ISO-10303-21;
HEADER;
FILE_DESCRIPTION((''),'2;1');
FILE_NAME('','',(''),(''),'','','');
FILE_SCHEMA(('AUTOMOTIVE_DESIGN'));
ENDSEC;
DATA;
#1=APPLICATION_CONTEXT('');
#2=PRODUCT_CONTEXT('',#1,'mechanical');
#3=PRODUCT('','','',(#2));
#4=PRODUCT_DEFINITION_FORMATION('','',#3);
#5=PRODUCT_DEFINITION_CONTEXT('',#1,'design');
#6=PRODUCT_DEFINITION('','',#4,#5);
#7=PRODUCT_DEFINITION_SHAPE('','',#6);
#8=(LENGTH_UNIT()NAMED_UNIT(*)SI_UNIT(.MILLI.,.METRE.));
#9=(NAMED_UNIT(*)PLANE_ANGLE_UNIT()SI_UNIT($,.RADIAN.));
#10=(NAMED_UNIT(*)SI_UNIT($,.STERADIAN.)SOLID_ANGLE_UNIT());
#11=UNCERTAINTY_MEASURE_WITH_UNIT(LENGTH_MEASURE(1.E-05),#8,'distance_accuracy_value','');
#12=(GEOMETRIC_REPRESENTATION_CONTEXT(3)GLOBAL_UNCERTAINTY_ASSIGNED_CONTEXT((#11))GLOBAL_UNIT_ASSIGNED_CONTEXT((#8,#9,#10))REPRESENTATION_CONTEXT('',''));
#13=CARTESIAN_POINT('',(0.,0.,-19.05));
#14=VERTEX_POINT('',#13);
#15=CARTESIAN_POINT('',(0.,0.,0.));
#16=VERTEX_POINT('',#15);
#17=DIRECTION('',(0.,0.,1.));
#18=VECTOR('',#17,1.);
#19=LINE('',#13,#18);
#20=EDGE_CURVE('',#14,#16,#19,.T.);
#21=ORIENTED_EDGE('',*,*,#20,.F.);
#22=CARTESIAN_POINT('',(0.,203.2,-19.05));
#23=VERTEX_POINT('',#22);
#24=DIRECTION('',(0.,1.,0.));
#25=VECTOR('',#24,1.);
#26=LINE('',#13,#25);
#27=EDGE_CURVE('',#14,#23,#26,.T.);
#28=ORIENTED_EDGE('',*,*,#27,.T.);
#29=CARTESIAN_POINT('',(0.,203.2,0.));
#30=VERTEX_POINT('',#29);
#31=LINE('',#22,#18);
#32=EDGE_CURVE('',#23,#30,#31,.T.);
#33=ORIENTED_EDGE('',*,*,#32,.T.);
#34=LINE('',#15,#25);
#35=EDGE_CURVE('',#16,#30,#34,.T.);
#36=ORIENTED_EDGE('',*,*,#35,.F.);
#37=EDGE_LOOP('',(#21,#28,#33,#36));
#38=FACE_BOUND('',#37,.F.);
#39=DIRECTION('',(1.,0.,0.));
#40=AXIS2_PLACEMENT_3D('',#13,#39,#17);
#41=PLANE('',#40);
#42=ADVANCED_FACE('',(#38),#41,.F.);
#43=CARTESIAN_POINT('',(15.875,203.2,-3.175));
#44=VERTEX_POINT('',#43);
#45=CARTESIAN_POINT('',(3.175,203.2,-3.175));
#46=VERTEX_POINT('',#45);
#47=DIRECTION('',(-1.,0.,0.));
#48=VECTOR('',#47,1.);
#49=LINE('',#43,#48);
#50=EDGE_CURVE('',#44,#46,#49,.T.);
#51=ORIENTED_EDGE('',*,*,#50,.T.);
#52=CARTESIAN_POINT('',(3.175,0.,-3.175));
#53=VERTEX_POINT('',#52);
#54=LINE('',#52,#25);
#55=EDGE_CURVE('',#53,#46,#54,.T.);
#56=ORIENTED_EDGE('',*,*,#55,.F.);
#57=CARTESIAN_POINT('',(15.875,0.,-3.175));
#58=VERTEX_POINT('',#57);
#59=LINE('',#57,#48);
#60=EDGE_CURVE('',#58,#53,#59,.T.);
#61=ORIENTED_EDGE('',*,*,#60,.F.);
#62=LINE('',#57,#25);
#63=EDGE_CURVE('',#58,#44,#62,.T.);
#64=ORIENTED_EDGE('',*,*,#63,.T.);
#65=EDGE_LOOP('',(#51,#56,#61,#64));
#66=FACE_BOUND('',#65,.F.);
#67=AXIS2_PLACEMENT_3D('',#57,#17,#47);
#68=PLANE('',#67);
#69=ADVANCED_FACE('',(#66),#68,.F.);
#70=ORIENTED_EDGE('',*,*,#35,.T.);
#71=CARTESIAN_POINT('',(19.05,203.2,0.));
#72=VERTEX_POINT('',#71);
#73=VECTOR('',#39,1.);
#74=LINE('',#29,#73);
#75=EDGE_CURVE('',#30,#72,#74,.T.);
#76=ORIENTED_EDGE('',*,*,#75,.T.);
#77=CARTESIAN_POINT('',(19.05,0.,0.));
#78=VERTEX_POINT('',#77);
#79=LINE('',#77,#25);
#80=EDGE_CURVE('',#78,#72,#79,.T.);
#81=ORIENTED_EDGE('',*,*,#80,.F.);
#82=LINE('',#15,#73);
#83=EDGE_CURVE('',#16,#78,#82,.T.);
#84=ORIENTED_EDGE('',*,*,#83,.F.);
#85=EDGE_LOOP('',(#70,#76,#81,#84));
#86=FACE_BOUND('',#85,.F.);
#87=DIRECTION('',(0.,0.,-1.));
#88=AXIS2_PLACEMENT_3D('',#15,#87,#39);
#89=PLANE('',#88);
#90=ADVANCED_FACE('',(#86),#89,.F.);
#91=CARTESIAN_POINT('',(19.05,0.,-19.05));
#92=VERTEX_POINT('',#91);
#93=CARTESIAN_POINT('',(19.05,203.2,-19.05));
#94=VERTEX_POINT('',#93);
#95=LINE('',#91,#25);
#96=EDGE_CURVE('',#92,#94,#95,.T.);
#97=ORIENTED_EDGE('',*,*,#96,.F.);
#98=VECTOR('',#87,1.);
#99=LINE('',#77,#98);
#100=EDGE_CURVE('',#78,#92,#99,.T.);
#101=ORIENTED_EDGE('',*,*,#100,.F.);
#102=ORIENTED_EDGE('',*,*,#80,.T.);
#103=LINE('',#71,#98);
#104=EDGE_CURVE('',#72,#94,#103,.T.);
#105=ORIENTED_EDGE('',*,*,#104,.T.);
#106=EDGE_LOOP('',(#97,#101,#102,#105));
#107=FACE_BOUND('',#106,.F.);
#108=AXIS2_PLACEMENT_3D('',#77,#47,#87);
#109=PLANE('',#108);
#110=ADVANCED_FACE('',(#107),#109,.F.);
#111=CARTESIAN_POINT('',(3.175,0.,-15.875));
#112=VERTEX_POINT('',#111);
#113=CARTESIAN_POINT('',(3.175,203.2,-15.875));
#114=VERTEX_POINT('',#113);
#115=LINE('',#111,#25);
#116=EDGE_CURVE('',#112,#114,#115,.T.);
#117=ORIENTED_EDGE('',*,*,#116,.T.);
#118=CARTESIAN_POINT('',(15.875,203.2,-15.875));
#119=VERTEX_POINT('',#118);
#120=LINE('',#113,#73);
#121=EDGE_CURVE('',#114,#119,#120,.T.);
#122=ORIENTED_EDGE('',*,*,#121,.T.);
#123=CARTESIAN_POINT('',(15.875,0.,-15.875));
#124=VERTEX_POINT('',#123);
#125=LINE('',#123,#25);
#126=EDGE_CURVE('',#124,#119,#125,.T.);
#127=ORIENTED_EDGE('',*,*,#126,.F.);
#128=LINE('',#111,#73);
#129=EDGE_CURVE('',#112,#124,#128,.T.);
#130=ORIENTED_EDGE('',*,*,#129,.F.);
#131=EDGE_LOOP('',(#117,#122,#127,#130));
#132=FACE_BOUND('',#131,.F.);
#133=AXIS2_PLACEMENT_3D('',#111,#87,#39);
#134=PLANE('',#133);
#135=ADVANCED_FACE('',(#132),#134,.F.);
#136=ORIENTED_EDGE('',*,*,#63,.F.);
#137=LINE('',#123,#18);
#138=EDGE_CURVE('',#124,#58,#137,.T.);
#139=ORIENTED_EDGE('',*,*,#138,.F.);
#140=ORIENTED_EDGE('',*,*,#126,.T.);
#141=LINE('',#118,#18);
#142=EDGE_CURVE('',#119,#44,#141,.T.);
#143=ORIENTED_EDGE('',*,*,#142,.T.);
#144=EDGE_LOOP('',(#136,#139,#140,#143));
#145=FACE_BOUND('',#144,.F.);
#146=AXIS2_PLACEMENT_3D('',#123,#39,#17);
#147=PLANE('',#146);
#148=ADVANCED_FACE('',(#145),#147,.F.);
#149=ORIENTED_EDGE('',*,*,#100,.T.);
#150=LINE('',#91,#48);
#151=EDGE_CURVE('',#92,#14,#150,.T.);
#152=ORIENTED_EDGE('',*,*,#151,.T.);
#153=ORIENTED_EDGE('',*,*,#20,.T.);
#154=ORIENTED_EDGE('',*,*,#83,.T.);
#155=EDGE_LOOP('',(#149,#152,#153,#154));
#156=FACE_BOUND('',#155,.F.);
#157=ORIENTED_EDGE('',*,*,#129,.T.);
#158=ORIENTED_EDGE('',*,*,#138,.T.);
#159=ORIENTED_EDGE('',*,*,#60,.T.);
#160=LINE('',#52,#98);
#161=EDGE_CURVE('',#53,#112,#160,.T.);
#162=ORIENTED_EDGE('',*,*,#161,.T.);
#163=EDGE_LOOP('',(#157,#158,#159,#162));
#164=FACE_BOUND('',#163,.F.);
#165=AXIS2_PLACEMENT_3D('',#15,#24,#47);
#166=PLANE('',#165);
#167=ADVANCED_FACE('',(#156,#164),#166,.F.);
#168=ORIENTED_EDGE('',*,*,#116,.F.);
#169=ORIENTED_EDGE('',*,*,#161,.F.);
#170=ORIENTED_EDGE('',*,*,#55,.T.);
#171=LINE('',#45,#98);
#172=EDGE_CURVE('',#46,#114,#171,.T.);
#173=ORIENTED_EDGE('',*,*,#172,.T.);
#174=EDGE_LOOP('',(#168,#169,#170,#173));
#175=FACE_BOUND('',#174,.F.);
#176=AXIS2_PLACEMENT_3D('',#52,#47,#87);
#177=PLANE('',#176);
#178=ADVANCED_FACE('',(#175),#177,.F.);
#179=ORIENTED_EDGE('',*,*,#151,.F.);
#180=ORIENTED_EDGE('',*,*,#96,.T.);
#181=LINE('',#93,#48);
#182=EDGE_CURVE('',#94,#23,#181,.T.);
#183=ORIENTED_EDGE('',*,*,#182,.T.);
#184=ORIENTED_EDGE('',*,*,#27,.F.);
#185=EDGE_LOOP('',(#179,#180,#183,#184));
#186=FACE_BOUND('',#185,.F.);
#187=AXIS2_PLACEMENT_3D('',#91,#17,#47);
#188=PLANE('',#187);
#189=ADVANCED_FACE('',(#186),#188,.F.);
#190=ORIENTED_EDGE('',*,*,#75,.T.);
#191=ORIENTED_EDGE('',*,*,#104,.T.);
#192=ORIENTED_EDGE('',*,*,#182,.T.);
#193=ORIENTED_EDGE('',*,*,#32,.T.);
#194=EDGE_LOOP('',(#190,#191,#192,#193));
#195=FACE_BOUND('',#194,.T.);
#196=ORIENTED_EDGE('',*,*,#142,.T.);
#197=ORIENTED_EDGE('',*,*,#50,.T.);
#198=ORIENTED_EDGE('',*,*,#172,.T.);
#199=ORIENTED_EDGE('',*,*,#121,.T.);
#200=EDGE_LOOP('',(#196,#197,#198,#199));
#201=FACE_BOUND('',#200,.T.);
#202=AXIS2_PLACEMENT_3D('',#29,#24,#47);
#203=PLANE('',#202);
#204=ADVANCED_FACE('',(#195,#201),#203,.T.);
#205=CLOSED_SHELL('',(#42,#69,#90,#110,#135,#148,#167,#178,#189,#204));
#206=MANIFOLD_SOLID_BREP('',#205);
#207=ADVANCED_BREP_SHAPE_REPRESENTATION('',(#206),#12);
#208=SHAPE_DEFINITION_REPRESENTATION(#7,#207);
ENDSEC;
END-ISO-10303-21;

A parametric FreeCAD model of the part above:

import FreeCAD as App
import Part
import Sketcher

V = App.Vector
Q = App.Units.Quantity


def add_polygon(sketch, points):
    """Adds a closed chain of lines whose ends are joined by coincident constraints."""
    first, n = sketch.GeometryCount, len(points)
    for a, b in zip(points, points[1:] + points[:1]):
        sketch.addGeometry(Part.LineSegment(App.Vector(*a, 0), App.Vector(*b, 0)), False)
    for i in range(n):
        sketch.addConstraint(Sketcher.Constraint("Coincident", first + i, 2, first + (i + 1) % n, 1))

doc = App.newDocument("Part")
body = doc.addObject("PartDesign::Body", "Body")

sketch1 = body.newObject("Sketcher::SketchObject", "Sketch")
sketch1.AttachmentSupport = (doc.getObject("XZ_Plane"), [""])
sketch1.MapMode = "FlatFace"
add_polygon(sketch1, [(0, -19), (0, 0), (19, 0), (19, -19)])
add_polygon(sketch1, [(3, -3), (3, -16), (16, -16), (16, -3)])
sketch1.addConstraint([
    Sketcher.Constraint("Vertical", 0),
    Sketcher.Constraint("Horizontal", 1),
    Sketcher.Constraint("Vertical", 2),
    Sketcher.Constraint("Horizontal", 3),
    Sketcher.Constraint("Vertical", 4),
    Sketcher.Constraint("Horizontal", 5),
    Sketcher.Constraint("Vertical", 6),
    Sketcher.Constraint("Horizontal", 7),
    Sketcher.Constraint("Coincident", 0, 2, -1, 1),
    Sketcher.Constraint("Equal", 3, 0),
    Sketcher.Constraint("Equal", 7, 4),
    Sketcher.Constraint("DistanceX", 1, 1, 1, 2, Q("0.75 in")),
    Sketcher.Constraint("DistanceX", 5, 1, 5, 2, Q("0.5 in")),
    Sketcher.Constraint("DistanceX", -1, 1, 4, 2, Q("0.125 in")),
    Sketcher.Constraint("DistanceY", 6, 2, -1, 1, Q("0.125 in")),
])
pad1 = body.newObject("PartDesign::Pad", "Pad")
pad1.Profile = sketch1
pad1.Length = Q("8 in")
pad1.Reversed = True

doc.recompute()
